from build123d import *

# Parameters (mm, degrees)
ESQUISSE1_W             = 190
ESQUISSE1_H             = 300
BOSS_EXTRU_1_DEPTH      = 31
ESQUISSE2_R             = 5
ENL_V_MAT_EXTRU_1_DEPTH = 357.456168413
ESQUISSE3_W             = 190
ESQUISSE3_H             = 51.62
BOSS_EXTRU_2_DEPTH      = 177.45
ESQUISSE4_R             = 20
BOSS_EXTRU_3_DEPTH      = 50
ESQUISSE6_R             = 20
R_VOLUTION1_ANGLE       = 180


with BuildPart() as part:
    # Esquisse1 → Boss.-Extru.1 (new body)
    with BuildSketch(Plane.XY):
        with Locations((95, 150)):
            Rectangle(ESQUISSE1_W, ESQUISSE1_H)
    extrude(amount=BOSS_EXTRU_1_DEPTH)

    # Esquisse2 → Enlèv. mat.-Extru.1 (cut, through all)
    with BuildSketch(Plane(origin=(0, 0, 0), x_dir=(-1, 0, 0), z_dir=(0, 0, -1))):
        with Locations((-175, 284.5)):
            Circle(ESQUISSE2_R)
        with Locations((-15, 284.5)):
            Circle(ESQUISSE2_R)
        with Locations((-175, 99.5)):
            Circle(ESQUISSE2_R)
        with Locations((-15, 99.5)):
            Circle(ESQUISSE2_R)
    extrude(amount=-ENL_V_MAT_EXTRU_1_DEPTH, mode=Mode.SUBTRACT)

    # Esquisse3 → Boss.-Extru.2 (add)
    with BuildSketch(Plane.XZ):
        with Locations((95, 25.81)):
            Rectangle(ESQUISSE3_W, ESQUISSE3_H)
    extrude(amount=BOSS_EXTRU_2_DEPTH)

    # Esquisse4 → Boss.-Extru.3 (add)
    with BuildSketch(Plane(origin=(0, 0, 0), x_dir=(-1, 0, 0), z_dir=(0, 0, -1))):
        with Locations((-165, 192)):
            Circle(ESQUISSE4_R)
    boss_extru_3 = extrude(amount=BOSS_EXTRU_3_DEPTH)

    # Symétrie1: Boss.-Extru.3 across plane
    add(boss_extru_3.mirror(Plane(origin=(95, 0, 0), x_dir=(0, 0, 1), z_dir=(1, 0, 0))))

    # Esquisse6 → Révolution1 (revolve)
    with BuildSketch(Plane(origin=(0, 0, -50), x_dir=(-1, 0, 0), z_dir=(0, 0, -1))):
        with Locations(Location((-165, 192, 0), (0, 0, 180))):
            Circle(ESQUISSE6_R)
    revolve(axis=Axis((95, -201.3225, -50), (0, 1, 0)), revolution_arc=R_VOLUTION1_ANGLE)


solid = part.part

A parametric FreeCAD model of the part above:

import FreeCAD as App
import Part
import Sketcher


def add_polygon(sketch, points):
    """Adds a closed chain of lines whose ends are joined by coincident constraints."""
    first, n = sketch.GeometryCount, len(points)
    for a, b in zip(points, points[1:] + points[:1]):
        sketch.addGeometry(Part.LineSegment(App.Vector(*a, 0), App.Vector(*b, 0)), False)
    for i in range(n):
        sketch.addConstraint(Sketcher.Constraint("Coincident", first + i, 2, first + (i + 1) % n, 1))

doc = App.newDocument("Part")
body = doc.addObject("PartDesign::Body", "Body")

# Sketch on XY plane
sketch1 = body.newObject("Sketcher::SketchObject", "Sketch")
sketch1.AttachmentSupport = (doc.getObject("XY_Plane"), [""])
sketch1.MapMode = "FlatFace"
add_polygon(sketch1, [(0, 300), (0, 0), (190, 0), (190, 300)])  # lines 0-3
sketch1.addConstraint([
    Sketcher.Constraint("Vertical", 0),
    Sketcher.Constraint("Horizontal", 1),
    Sketcher.Constraint("Vertical", 2),
    Sketcher.Constraint("Horizontal", 3),
    Sketcher.Constraint("Coincident", 0, 2, -1, 1),
    Sketcher.Constraint("DistanceX", 1, 1, 1, 2, 190.0),
    Sketcher.Constraint("DistanceY", 0, 2, 0, 1, 300.0),
])
pad1 = body.newObject("PartDesign::Pad", "Pad")
pad1.Profile = sketch1
pad1.Length = 31

# Sketch on XY plane
sketch2 = body.newObject("Sketcher::SketchObject", "Sketch001")
sketch2.AttachmentSupport = (doc.getObject("XY_Plane"), [""])
sketch2.MapMode = "FlatFace"
sketch2.addGeometry([
    Part.Circle(App.Vector(175, 284, 0), App.Vector(0, 0, 1), 5),
    Part.Circle(App.Vector(15, 284, 0), App.Vector(0, 0, 1), 5),
    Part.Circle(App.Vector(175, 100, 0), App.Vector(0, 0, 1), 5),
    Part.Circle(App.Vector(15, 100, 0), App.Vector(0, 0, 1), 5),
], False)
sketch2.addConstraint([
    Sketcher.Constraint("Equal", 0, 1),
    Sketcher.Constraint("Equal", 1, 2),
    Sketcher.Constraint("Equal", 2, 3),
    Sketcher.Constraint("Horizontal", 0, 3, 1, 3),
    Sketcher.Constraint("Horizontal", 2, 3, 3, 3),
    Sketcher.Constraint("Vertical", 0, 3, 2, 3),
    Sketcher.Constraint("Vertical", 1, 3, 3, 3),
    Sketcher.Constraint("Diameter", 0, 10.0),
    Sketcher.Constraint("DistanceX", -1, 1, 0, 3, 175.0),
    Sketcher.Constraint("DistanceX", -1, 1, 1, 3, 15.0),
    Sketcher.Constraint("DistanceY", 2, 3, 0, 3, 185.0),
    Sketcher.Constraint("DistanceY", -1, 1, 0, 3, 284.5),
])
pocket1 = body.newObject("PartDesign::Pocket", "Pocket")
pocket1.Profile = sketch2
pocket1.Type = "ThroughAll"
pocket1.Reversed = True

# Sketch on XZ plane
sketch3 = body.newObject("Sketcher::SketchObject", "Sketch002")
sketch3.AttachmentSupport = (doc.getObject("XZ_Plane"), [""])
sketch3.MapMode = "FlatFace"
add_polygon(sketch3, [(0, 52), (0, 0), (190, 0), (190, 52)])  # lines 0-3
sketch3.addConstraint([
    Sketcher.Constraint("Vertical", 0),
    Sketcher.Constraint("Horizontal", 1),
    Sketcher.Constraint("Vertical", 2),
    Sketcher.Constraint("Horizontal", 3),
    Sketcher.Constraint("Coincident", 0, 2, -1, 1),
    Sketcher.Constraint("DistanceX", 1, 1, 1, 2, 190.0),
    Sketcher.Constraint("DistanceY", 0, 2, 0, 1, 51.62),
])
pad2 = body.newObject("PartDesign::Pad", "Pad001")
pad2.Profile = sketch3
pad2.Length = 177.45

# Sketch on XY plane
sketch4 = body.newObject("Sketcher::SketchObject", "Sketch003")
sketch4.AttachmentSupport = (doc.getObject("XY_Plane"), [""])
sketch4.MapMode = "FlatFace"
sketch4.addGeometry(Part.Circle(App.Vector(165, 192, 0), App.Vector(0, 0, 1), 20), False)
sketch4.addConstraint([
    Sketcher.Constraint("Diameter", 0, 40.0),
    Sketcher.Constraint("DistanceX", -1, 1, 0, 3, 165.0),
    Sketcher.Constraint("DistanceY", -1, 1, 0, 3, 192.0),
])
pad3 = body.newObject("PartDesign::Pad", "Pad002")
pad3.Profile = sketch4
pad3.Length = 50
pad3.Reversed = True
doc.recompute()

datumplane = body.newObject("PartDesign::Plane", "DatumPlane")
datumplane.AttachmentSupport = (doc.getObject("YZ_Plane"), [""])
datumplane.MapMode = "FlatFace"
datumplane.AttachmentOffset = App.Placement(App.Vector(0, 0, 95), App.Rotation())
mirrored = body.newObject("PartDesign::Mirrored", "Mirrored")
mirrored.Originals = [pad3]
mirrored.MirrorPlane = (datumplane, [""])
body.Tip = mirrored

# Sketch on XY plane
sketch5 = body.newObject("Sketcher::SketchObject", "Sketch004")
sketch5.AttachmentSupport = (doc.getObject("XY_Plane"), [""])
sketch5.MapMode = "FlatFace"
sketch5.AttachmentOffset = App.Placement(App.Vector(0, 0, -50), App.Rotation())
sketch5.addGeometry(Part.Circle(App.Vector(165, 192, 0), App.Vector(0, 0, 1), 20), False)
sketch5.addGeometry(Part.LineSegment(App.Vector(95, 192, 0), App.Vector(95, 202, 0)), True)  # axis
sketch5.addConstraint([
    Sketcher.Constraint("Vertical", 1),
    Sketcher.Constraint("Horizontal", 0, 3, 1, 1),
    Sketcher.Constraint("Diameter", 0, 40.0),
    Sketcher.Constraint("DistanceY", 1, 1, 1, 2, 10.0),
    Sketcher.Constraint("DistanceX", -1, 1, 0, 3, 165.0),
    Sketcher.Constraint("DistanceY", -1, 1, 0, 3, 192.0),
    Sketcher.Constraint("DistanceX", -1, 1, 1, 1, 95.0),
])
revolution = body.newObject("PartDesign::Revolution", "Revolution")
revolution.Profile = sketch5
revolution.ReferenceAxis = (sketch5, ["Axis0"])
revolution.Angle = 180

doc.recompute()
